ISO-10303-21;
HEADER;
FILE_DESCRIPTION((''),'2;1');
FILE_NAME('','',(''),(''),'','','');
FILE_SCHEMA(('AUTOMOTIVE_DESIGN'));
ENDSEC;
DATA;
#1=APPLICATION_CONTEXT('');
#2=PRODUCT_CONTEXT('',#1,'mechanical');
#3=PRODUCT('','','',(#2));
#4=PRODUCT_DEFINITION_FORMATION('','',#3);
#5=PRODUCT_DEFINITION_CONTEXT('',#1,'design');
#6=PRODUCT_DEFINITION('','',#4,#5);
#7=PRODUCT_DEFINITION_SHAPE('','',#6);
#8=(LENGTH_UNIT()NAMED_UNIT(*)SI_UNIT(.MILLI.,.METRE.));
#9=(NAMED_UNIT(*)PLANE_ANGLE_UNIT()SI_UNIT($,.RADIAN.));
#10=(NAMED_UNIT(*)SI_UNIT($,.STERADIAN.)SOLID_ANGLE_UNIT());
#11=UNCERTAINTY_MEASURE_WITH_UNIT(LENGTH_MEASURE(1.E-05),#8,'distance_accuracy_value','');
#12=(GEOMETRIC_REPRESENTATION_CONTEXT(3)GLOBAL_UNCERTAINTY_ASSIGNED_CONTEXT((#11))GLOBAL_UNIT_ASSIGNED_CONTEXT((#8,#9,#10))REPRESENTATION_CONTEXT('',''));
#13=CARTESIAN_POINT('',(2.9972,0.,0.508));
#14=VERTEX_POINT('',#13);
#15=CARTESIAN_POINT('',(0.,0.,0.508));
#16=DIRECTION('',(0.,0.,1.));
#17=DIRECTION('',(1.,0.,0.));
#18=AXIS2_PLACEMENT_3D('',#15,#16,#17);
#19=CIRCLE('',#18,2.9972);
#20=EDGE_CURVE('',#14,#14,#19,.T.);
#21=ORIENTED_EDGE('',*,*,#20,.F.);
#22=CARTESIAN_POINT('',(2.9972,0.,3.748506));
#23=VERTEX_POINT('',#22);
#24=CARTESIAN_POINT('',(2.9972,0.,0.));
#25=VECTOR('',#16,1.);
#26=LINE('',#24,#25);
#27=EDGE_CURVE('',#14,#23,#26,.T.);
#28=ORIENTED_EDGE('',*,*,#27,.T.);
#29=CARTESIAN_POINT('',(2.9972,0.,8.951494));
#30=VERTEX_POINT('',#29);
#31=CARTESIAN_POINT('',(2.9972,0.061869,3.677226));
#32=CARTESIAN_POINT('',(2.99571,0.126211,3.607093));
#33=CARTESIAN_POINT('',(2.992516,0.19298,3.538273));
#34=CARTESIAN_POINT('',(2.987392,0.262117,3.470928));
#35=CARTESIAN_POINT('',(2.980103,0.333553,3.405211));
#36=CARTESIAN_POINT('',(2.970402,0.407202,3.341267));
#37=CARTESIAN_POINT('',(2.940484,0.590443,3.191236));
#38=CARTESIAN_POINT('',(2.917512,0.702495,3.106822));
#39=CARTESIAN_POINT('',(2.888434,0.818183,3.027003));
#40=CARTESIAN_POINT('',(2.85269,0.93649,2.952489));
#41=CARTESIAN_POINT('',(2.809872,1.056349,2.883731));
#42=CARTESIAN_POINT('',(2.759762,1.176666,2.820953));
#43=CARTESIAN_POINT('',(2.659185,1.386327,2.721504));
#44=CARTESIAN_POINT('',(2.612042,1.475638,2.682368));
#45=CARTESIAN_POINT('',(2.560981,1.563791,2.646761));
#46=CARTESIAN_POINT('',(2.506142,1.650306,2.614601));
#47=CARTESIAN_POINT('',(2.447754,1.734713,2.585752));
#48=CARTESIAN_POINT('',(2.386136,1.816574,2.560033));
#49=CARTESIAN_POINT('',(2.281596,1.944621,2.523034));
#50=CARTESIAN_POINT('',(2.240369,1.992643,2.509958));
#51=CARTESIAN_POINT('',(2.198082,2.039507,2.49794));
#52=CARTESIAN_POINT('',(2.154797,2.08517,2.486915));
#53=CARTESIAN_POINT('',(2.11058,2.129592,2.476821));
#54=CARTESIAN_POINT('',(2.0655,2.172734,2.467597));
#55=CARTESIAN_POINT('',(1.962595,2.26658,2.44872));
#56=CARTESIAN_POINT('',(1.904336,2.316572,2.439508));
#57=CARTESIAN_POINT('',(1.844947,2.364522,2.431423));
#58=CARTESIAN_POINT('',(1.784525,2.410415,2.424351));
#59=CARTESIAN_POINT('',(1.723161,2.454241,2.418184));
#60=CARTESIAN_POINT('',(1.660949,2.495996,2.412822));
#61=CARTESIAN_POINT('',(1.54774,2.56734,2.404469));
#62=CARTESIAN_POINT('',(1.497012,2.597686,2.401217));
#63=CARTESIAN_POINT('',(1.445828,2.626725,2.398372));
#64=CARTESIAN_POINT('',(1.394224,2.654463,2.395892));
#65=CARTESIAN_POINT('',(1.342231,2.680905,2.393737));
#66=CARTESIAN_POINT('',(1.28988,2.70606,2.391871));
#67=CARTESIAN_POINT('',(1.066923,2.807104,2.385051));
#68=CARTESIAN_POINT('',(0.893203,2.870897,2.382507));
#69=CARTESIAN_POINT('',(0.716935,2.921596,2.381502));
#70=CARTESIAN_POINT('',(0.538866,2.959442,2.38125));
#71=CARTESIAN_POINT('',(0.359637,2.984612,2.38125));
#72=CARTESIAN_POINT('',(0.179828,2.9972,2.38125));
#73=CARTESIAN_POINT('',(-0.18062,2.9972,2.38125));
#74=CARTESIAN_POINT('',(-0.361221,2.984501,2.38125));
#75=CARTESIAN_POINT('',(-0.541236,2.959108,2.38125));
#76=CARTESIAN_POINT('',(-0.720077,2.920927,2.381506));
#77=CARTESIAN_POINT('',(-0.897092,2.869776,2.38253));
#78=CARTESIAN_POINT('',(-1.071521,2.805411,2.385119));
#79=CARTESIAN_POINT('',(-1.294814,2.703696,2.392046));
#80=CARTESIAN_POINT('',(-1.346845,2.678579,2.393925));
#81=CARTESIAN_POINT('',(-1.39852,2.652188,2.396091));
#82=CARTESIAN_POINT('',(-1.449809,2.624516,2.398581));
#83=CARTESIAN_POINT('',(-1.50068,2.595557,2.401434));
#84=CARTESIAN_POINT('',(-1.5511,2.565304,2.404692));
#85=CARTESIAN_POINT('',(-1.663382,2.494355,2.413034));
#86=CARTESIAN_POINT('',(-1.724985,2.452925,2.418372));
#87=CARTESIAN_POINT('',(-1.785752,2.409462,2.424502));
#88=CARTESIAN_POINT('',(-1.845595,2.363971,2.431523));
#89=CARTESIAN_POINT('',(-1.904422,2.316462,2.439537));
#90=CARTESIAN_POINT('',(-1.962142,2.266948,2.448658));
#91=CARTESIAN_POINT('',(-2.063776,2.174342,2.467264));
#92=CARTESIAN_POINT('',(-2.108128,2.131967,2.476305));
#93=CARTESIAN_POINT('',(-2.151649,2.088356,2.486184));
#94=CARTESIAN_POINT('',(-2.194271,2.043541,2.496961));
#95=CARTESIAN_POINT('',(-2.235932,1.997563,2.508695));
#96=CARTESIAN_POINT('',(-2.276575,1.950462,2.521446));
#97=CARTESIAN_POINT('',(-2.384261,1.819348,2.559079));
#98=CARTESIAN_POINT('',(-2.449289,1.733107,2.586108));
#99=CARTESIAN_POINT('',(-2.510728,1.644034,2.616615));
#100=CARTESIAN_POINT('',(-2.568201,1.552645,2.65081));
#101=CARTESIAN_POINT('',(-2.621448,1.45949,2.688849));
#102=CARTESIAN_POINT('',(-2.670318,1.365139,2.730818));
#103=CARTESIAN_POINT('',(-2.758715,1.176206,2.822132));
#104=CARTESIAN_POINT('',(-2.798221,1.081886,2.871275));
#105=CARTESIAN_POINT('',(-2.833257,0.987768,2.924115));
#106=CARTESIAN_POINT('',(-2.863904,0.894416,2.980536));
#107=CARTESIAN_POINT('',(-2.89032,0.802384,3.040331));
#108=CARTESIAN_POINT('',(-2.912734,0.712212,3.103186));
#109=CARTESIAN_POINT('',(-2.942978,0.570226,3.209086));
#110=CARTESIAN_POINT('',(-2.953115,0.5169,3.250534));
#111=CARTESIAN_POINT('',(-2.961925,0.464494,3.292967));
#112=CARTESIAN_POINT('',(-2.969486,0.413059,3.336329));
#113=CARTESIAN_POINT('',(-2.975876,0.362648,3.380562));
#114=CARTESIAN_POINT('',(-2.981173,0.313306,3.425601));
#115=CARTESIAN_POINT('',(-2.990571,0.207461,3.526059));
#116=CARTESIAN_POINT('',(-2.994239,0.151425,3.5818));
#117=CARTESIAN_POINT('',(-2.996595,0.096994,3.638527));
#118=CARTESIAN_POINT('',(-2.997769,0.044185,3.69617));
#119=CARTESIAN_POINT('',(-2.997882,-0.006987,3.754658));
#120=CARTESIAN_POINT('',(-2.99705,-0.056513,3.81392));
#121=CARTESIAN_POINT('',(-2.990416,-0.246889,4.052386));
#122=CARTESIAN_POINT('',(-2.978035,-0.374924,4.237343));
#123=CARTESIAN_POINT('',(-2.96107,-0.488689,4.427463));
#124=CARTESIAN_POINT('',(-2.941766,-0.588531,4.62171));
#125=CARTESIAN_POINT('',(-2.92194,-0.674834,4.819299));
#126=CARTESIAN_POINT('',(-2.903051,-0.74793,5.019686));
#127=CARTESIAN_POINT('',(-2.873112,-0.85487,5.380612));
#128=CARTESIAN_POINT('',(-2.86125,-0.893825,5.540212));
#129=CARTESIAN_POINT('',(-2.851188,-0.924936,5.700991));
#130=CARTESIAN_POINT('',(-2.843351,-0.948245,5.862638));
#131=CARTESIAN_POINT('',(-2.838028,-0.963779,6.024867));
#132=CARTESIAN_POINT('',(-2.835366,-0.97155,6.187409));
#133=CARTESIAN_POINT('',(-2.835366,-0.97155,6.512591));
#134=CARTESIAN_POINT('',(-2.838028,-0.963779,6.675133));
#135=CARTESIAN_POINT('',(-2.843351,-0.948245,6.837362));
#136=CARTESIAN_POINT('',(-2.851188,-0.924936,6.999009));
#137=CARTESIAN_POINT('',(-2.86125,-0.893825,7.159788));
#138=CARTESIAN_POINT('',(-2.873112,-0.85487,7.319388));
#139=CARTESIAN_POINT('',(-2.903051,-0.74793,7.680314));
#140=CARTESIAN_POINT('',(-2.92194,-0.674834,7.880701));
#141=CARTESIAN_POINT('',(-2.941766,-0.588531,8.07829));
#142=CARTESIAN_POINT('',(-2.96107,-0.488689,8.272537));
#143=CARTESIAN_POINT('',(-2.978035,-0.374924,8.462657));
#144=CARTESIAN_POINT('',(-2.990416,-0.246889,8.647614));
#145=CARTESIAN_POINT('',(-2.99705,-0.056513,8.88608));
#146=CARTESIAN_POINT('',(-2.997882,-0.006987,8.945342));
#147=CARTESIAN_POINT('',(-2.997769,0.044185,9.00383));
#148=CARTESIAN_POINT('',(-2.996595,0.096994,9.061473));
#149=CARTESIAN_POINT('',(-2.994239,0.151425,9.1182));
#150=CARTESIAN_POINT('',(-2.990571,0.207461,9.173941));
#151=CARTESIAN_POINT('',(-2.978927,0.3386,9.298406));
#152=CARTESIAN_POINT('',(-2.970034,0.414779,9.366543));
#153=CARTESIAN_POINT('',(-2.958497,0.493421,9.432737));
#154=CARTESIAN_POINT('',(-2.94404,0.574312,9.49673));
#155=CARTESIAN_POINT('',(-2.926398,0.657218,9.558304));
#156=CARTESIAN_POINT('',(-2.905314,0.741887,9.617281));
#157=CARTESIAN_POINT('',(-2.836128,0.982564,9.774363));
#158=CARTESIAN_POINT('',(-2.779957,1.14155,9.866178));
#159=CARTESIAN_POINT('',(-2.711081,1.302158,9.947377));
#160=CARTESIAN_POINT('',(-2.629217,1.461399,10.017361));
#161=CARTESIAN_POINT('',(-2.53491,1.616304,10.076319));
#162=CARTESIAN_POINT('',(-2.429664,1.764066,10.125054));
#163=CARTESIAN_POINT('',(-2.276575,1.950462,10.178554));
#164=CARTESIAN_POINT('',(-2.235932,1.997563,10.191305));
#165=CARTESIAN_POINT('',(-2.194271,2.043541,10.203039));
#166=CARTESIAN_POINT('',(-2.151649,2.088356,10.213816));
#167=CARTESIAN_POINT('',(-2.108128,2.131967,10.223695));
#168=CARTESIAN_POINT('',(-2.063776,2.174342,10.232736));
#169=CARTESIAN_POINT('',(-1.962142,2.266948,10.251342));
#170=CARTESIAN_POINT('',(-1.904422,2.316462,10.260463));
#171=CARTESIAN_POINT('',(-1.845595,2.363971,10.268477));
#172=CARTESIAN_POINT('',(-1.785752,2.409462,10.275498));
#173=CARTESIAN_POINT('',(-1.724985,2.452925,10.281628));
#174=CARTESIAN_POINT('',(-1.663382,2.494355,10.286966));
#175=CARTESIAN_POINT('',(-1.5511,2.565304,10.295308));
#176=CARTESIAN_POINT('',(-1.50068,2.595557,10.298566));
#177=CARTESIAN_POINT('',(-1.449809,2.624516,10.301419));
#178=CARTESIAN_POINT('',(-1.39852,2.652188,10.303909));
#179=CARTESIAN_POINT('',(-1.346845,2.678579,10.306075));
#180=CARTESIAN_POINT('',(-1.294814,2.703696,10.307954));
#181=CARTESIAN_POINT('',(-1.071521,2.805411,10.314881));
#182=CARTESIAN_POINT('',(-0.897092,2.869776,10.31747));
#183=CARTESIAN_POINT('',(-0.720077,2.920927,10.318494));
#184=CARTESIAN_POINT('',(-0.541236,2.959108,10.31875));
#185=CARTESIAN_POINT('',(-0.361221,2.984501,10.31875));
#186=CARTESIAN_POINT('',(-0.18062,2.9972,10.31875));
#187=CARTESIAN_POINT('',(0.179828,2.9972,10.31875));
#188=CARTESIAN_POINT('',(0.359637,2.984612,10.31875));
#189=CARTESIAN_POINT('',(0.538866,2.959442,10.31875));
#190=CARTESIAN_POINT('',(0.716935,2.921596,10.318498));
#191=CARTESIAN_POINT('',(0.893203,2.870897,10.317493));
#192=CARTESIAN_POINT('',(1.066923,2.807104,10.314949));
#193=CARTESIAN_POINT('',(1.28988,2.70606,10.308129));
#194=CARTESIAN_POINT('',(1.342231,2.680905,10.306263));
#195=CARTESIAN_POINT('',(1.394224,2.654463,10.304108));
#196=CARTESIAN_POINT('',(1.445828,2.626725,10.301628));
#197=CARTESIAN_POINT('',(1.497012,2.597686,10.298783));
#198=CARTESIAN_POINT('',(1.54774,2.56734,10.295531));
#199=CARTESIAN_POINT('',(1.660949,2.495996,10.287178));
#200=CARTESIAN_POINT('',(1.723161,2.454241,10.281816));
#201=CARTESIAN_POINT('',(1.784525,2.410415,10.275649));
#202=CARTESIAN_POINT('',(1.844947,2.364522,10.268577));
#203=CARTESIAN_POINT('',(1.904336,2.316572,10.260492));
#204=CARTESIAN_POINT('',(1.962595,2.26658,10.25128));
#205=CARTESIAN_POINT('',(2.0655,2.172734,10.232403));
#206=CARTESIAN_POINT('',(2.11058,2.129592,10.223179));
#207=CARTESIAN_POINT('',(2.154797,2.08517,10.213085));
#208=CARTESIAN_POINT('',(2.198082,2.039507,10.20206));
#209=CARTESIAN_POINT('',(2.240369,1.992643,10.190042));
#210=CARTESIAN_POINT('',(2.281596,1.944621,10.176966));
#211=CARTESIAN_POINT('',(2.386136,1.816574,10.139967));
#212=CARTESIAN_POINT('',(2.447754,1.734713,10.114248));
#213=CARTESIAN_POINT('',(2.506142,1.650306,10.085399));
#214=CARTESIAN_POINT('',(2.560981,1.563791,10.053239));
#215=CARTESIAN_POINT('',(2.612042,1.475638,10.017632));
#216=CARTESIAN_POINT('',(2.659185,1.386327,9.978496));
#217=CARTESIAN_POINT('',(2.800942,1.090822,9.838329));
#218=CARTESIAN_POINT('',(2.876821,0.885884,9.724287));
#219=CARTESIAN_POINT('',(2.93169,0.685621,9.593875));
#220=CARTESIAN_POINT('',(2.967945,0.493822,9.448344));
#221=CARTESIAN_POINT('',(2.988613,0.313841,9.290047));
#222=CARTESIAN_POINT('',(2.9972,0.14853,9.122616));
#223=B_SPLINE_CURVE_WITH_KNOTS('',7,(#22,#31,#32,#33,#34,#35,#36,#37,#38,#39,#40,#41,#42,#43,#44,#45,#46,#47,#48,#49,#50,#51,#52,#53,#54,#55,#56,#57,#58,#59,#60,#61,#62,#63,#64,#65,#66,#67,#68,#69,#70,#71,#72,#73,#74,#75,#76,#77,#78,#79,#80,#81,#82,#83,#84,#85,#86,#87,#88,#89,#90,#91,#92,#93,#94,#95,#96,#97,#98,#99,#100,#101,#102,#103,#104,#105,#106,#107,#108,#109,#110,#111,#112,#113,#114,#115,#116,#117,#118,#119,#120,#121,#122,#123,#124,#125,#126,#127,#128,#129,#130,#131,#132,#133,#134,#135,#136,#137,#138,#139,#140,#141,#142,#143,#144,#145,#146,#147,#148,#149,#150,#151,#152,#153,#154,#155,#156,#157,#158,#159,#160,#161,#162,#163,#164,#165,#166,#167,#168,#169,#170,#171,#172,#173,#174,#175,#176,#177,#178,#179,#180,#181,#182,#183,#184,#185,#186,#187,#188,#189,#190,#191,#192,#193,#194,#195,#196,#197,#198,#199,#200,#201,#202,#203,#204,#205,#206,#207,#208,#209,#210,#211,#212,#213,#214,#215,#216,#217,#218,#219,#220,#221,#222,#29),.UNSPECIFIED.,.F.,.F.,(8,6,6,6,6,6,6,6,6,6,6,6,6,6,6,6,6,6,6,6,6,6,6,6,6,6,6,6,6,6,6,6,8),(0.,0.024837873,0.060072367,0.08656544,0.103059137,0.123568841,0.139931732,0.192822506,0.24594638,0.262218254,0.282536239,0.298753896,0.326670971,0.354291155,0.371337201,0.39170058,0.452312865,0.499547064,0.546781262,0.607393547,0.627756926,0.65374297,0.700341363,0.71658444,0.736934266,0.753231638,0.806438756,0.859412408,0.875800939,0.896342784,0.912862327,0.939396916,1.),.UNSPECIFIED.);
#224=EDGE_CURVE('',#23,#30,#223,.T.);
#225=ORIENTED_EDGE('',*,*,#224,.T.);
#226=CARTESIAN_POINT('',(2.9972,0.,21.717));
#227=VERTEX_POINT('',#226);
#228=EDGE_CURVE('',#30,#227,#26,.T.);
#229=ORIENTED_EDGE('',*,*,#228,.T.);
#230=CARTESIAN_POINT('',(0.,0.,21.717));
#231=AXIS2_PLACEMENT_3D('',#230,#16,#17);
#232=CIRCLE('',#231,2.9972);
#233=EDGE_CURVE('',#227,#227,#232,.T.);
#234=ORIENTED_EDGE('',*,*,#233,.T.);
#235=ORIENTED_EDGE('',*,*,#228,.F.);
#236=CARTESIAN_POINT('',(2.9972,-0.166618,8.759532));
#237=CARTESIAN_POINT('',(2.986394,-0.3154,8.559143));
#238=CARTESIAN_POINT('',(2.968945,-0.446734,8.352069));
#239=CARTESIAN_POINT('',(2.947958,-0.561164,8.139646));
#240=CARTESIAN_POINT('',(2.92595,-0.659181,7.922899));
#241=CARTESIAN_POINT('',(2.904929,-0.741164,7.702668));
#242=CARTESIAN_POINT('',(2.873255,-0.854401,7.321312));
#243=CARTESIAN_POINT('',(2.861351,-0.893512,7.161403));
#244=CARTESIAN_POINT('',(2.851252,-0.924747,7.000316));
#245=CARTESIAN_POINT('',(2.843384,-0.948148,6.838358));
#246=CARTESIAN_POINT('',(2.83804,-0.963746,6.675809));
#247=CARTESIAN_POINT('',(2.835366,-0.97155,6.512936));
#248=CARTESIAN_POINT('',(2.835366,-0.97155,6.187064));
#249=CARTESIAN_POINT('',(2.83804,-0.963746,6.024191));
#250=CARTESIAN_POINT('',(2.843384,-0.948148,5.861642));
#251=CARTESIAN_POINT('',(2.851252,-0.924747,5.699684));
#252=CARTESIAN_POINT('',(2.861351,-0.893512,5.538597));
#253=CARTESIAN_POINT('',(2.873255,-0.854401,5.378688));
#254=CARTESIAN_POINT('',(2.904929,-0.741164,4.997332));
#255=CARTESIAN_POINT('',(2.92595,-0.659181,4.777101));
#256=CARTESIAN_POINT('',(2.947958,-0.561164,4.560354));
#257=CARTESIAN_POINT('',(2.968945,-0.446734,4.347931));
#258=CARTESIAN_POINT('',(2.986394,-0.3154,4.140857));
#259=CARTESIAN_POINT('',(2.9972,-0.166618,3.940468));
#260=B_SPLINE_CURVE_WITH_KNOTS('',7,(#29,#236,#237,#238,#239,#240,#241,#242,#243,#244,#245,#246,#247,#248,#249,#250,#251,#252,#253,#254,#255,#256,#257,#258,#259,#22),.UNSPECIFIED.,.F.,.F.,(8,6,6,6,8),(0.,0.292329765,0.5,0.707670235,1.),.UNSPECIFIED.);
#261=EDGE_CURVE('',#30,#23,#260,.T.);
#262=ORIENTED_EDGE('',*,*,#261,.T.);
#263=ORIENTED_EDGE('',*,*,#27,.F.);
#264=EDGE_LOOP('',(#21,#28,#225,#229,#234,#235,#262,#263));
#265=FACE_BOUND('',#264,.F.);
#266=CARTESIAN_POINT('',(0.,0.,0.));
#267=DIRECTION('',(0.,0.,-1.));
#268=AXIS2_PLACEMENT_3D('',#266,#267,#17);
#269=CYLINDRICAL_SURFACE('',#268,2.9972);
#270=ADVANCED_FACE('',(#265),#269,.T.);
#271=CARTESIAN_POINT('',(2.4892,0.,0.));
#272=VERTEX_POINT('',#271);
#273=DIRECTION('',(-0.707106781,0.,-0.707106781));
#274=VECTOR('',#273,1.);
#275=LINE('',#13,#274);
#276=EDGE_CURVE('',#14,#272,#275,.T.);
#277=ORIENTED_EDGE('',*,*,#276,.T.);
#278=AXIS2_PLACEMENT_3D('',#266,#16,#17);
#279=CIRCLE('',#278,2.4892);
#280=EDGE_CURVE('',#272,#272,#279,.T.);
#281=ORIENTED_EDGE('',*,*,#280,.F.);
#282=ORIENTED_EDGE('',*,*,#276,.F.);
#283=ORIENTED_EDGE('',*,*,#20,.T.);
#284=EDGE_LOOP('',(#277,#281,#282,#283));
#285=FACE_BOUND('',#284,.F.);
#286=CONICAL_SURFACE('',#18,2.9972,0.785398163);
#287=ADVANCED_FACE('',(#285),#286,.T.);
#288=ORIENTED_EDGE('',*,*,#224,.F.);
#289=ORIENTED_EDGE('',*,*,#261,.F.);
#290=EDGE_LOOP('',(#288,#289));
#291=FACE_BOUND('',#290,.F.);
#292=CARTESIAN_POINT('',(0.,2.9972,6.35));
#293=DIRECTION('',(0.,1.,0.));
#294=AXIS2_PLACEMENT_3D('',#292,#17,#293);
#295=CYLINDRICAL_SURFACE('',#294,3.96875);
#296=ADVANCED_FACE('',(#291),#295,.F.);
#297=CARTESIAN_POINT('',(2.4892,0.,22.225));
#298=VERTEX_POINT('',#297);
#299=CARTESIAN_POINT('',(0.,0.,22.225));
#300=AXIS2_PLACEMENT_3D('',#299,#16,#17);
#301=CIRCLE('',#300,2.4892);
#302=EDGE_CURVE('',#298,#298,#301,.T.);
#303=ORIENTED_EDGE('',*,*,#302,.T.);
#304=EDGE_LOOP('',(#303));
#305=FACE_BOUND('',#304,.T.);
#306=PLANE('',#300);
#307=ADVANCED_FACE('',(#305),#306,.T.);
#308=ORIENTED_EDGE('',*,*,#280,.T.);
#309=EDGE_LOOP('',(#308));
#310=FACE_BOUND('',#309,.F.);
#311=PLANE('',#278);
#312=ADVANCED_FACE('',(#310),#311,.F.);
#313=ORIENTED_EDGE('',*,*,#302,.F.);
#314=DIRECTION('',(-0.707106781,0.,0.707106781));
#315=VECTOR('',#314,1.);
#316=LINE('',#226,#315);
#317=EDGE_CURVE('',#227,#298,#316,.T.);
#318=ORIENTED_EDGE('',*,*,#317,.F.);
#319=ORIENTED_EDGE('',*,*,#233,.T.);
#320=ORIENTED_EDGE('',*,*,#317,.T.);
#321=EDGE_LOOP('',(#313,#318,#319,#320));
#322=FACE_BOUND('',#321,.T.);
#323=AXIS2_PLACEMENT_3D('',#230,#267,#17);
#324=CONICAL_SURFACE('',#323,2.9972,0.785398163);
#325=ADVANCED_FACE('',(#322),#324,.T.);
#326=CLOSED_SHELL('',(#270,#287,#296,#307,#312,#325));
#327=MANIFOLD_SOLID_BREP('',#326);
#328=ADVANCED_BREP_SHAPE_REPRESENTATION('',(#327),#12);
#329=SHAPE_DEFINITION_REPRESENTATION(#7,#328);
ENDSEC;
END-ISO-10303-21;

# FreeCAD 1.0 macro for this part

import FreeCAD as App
import Part
import Sketcher
from FreeCAD import Vector
Q = App.Units.Quantity


def edges_at(feature, points):
    """Names of the edges that pass closest to the given points."""
    edges = feature.Shape.Edges
    near = lambda p: min(range(len(edges)), key=lambda i: edges[i].distToShape(Part.Vertex(*p))[0])
    return sorted({f"Edge{near(p) + 1}" for p in points})

doc = App.newDocument("Part")
body = doc.addObject("PartDesign::Body", "Body")

sketch1 = doc.addObject("Sketcher::SketchObject", "Sketch")
body.addObject(sketch1)
sketch1.AttachmentSupport = (doc.XY_Plane, [""])
sketch1.MapMode = "FlatFace"
sketch1.addGeometry(Part.Circle(Vector(0, 0, 0), Vector(0, 0, 1), 3), False)
sketch1.addConstraint([
    Sketcher.Constraint("Coincident", 0, 3, -1, 1),
    Sketcher.Constraint("Diameter", 0, Q("0.236 in")),
])
pad1 = doc.addObject("PartDesign::Pad", "Pad")
body.addObject(pad1)
pad1.Profile = sketch1
pad1.Length = Q("0.875 in")
body2 = doc.addObject("PartDesign::Body", "Body001")

sketch2 = doc.addObject("Sketcher::SketchObject", "Sketch001")
body2.addObject(sketch2)
sketch2.AttachmentSupport = (doc.getObject("YZ_Plane001"), [""])
sketch2.MapMode = "FlatFace"
sketch2.addGeometry(Part.Circle(Vector(3, 6.3, 0), Vector(0, 0, 1), 4), False)
sketch2.addConstraint([
    Sketcher.Constraint("Diameter", 0, Q("0.3125 in")),
    Sketcher.Constraint("DistanceY", -1, 1, 0, 3, Q("0.25 in")),
    Sketcher.Constraint("DistanceX", -1, 1, 0, 3, Q("0.118 in")),
])
pad2 = doc.addObject("PartDesign::Pad", "Pad001")
body2.addObject(pad2)
pad2.Profile = sketch2
pad2.Length = Q("1 in")
pad2.Midplane = True
doc.recompute()

boolean = doc.addObject("PartDesign::Boolean", "Boolean")
body.addObject(boolean)
boolean.Type = "Cut"
boolean.addObjects([body2])
doc.recompute()

chamfer = doc.addObject("PartDesign::Chamfer", "Chamfer")
body.addObject(chamfer)
chamfer.Base = (boolean, edges_at(boolean, [(-2.997, 0, 22.225), (-2.997, 0, 0)]))
chamfer.Size = Q("0.02 in")

doc.recompute()
